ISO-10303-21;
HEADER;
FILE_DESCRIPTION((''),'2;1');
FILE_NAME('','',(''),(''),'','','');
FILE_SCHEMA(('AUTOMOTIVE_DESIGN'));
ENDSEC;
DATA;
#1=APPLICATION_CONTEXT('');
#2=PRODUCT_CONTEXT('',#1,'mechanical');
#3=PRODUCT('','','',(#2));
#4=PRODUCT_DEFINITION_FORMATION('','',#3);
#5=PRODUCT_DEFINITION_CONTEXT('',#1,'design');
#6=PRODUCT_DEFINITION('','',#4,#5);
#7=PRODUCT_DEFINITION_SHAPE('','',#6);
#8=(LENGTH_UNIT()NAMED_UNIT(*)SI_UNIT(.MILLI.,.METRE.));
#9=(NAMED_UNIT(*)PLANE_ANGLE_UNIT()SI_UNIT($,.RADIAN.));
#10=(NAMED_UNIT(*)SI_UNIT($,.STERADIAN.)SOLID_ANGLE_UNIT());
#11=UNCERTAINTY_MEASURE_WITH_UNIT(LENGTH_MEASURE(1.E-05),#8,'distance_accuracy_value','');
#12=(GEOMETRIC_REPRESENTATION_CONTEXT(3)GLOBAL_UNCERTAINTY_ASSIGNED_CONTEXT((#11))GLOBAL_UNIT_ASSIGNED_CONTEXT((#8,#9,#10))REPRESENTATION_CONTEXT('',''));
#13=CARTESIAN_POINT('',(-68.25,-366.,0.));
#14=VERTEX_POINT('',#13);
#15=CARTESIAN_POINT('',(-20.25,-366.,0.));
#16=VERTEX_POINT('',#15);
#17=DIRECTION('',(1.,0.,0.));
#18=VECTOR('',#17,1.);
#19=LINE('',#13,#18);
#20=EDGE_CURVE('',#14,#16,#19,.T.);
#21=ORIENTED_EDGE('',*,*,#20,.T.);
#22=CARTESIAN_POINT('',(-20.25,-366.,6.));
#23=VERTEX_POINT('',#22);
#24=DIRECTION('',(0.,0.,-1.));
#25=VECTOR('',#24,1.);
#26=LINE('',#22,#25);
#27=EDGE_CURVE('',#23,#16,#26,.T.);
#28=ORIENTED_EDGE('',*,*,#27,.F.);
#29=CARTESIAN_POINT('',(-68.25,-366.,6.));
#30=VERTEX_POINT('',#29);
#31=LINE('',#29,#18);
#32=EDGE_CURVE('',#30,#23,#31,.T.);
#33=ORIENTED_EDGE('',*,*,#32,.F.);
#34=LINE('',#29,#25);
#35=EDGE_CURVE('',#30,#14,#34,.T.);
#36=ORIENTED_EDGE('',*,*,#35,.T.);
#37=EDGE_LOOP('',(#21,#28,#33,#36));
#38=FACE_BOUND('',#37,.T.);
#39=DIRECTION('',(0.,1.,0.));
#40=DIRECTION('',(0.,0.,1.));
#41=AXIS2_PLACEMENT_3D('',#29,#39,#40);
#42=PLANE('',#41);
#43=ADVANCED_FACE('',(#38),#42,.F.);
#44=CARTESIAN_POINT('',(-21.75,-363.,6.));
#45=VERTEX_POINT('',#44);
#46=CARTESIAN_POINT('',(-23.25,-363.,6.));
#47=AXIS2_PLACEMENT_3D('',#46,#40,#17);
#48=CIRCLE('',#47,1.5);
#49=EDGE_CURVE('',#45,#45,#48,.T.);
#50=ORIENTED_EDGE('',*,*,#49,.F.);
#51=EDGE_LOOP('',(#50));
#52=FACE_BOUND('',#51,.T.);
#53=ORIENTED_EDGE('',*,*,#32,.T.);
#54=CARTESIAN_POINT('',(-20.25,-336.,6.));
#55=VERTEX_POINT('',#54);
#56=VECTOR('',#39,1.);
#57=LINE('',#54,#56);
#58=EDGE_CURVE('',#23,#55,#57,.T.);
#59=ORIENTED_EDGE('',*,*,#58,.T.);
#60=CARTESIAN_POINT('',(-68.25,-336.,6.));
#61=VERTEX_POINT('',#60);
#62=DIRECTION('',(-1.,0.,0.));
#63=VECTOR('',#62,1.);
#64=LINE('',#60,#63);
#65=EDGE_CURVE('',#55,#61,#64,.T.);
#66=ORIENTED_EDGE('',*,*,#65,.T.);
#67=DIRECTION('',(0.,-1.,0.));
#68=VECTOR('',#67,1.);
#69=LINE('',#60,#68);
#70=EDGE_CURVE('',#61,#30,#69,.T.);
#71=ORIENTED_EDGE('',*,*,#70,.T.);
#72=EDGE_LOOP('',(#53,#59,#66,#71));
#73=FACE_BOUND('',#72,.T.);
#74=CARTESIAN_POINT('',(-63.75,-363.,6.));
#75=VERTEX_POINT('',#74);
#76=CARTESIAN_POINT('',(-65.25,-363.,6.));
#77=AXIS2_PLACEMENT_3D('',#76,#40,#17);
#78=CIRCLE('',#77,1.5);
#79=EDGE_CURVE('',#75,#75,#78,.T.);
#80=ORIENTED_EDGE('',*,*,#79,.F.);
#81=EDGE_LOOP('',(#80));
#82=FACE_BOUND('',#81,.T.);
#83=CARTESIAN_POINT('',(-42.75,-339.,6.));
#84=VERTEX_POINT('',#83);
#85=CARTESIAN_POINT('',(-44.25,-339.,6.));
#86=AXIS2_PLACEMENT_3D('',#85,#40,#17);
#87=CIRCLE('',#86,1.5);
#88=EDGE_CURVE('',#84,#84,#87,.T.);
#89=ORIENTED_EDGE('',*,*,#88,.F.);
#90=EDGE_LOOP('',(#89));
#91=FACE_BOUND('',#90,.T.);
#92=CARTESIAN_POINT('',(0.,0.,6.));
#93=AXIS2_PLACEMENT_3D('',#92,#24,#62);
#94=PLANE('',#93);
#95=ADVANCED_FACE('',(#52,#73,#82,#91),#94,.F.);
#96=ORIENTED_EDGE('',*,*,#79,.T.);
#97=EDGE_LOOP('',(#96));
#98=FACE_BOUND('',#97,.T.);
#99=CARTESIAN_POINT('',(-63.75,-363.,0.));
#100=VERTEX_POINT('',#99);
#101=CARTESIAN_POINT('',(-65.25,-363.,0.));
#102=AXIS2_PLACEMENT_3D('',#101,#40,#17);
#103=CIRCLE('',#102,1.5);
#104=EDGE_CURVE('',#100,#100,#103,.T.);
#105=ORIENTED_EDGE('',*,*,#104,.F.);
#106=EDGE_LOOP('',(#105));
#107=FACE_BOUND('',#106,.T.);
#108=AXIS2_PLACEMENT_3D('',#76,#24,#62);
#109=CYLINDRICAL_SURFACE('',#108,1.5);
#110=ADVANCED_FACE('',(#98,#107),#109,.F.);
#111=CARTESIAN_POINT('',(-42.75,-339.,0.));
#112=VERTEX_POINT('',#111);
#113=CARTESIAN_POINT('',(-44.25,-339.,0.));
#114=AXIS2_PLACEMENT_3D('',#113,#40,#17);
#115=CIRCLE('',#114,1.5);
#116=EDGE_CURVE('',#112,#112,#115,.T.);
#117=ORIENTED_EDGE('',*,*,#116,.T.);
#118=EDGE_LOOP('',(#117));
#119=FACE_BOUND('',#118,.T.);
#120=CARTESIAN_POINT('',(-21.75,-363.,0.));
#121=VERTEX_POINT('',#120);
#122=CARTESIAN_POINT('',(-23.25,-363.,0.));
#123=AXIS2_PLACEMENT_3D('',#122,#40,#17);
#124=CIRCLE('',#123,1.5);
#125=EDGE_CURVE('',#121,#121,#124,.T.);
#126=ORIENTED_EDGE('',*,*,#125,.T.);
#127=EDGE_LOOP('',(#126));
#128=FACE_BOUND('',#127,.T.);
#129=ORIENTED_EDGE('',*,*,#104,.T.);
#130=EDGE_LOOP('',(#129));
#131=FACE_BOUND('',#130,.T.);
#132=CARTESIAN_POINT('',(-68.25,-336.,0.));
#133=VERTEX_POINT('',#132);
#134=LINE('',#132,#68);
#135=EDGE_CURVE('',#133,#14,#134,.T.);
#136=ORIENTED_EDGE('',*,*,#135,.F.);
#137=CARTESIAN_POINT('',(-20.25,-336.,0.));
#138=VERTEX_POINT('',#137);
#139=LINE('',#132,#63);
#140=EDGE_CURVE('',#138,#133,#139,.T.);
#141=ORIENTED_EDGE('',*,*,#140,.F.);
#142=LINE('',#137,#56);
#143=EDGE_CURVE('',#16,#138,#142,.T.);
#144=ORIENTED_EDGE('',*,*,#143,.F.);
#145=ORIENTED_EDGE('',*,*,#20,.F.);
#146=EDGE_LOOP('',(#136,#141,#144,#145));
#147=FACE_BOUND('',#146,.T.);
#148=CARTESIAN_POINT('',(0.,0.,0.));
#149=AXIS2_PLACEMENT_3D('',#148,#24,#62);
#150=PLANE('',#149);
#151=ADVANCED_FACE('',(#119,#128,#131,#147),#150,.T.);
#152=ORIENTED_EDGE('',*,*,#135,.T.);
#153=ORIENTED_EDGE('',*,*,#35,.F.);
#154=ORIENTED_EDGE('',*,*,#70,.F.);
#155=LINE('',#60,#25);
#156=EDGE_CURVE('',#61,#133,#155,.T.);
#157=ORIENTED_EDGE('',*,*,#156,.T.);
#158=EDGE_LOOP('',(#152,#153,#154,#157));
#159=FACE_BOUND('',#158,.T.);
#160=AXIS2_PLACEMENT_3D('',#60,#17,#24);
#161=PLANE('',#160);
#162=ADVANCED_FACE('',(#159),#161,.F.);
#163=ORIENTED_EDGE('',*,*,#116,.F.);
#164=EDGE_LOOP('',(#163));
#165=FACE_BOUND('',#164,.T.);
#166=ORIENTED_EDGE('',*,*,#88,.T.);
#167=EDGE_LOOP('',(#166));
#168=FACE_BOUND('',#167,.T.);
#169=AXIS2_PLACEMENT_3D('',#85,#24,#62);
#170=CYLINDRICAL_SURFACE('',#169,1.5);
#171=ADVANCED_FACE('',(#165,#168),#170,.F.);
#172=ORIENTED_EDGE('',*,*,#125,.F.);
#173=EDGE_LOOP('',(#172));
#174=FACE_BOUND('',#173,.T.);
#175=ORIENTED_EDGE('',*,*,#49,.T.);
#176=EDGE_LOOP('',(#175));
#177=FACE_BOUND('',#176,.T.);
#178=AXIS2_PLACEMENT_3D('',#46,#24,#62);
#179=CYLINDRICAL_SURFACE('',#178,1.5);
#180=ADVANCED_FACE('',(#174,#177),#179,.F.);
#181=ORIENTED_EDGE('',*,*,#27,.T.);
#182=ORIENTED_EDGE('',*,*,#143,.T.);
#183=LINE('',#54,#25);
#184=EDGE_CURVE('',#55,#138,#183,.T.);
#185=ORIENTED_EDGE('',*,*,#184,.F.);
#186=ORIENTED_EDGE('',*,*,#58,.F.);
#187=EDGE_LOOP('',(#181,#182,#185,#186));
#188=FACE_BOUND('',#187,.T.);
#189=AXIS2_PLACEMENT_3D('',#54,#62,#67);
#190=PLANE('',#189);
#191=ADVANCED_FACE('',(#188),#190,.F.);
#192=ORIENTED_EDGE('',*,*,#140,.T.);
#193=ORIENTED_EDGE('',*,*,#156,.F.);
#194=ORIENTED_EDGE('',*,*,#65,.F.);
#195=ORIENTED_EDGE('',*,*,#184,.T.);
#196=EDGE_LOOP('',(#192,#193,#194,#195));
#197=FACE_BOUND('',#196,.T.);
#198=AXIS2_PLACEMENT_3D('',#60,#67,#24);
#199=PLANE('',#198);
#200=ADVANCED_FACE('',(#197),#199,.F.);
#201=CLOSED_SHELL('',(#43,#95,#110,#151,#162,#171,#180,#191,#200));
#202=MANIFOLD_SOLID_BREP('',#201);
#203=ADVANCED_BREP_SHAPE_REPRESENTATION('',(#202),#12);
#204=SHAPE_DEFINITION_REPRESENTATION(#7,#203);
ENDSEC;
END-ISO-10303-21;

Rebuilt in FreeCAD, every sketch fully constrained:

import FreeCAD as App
import Part
import Sketcher

V = App.Vector

doc = App.newDocument("Part")
body = doc.addObject("PartDesign::Body", "Body")

# Sketch on XY plane
sketch1 = body.newObject("Sketcher::SketchObject", "Sketch")
sketch1.AttachmentSupport = (doc.getObject("XY_Plane"), [""])
sketch1.MapMode = "FlatFace"
sketch1.addGeometry([
    Part.LineSegment(V(-68.25, -336, 0), V(-68.25, -366, 0)),  # 0
    Part.LineSegment(V(-68.25, -366, 0), V(-20.25, -366, 0)),  # 1
    Part.LineSegment(V(-20.25, -366, 0), V(-20.25, -336, 0)),  # 2
    Part.LineSegment(V(-20.25, -336, 0), V(-68.25, -336, 0)),  # 3
    Part.Circle(V(-65.25, -363, 0), V(0, 0, 1), 1.5),  # 4
    Part.Circle(V(-23.25, -363, 0), V(0, 0, 1), 1.5),  # 5
    Part.Circle(V(-44.25, -339, 0), V(0, 0, 1), 1.5),  # 6
], False)
sketch1.addConstraint([
    Sketcher.Constraint("Coincident", 0, 2, 1, 1),
    Sketcher.Constraint("Coincident", 1, 2, 2, 1),
    Sketcher.Constraint("Coincident", 2, 2, 3, 1),
    Sketcher.Constraint("Coincident", 3, 2, 0, 1),
    Sketcher.Constraint("Vertical", 0),
    Sketcher.Constraint("Horizontal", 1),
    Sketcher.Constraint("Vertical", 2),
    Sketcher.Constraint("Horizontal", 3),
    Sketcher.Constraint("Equal", 4, 5),
    Sketcher.Constraint("Equal", 5, 6),
    Sketcher.Constraint("Horizontal", 4, 3, 5, 3),
    Sketcher.Constraint("Diameter", 4, 3.0),
    Sketcher.Constraint("DistanceX", 1, 1, 1, 2, 48.0),
    Sketcher.Constraint("DistanceY", 0, 2, 0, 1, 30.0),
    Sketcher.Constraint("DistanceY", 4, 3, -1, 1, 363.0),
    Sketcher.Constraint("DistanceY", 6, 3, -1, 1, 339.0),
    Sketcher.Constraint("DistanceY", 0, 2, -1, 1, 366.0),
    Sketcher.Constraint("DistanceX", 4, 3, 5, 3, 42.0),
    Sketcher.Constraint("DistanceX", 4, 3, 6, 3, 21.0),
    Sketcher.Constraint("DistanceX", 0, 2, 4, 3, 3.0),
    Sketcher.Constraint("DistanceX", 4, 3, -1, 1, 65.25),
])
pad1 = body.newObject("PartDesign::Pad", "Pad")
pad1.Profile = sketch1
pad1.Length = 6

doc.recompute()
